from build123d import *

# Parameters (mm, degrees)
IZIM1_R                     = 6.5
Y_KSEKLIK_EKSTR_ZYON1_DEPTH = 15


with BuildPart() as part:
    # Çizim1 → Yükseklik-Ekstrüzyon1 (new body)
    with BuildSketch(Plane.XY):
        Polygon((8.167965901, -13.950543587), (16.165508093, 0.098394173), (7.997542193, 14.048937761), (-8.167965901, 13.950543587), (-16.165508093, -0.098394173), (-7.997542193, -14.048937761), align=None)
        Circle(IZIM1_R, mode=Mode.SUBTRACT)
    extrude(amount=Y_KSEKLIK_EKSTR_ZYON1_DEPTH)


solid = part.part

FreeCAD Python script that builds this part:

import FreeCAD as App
import Part
import Sketcher
Q = App.Units.Quantity


def add_polygon(sketch, points):
    """Adds a closed chain of lines whose ends are joined by coincident constraints."""
    first, n = sketch.GeometryCount, len(points)
    for a, b in zip(points, points[1:] + points[:1]):
        sketch.addGeometry(Part.LineSegment(App.Vector(*a, 0), App.Vector(*b, 0)), False)
    for i in range(n):
        sketch.addConstraint(Sketcher.Constraint("Coincident", first + i, 2, first + (i + 1) % n, 1))

doc = App.newDocument("Part")
params = doc.addObject("Spreadsheet::Sheet", "Params")
for row, (alias, value) in enumerate([
    ("sketch1_diameter", "13 mm"),
    ("pad1_length", "15 mm"),
], start=1):
    params.set(f"A{row}", alias)
    params.set(f"B{row}", "=" + value)
    params.setAlias(f"B{row}", alias)

body = doc.addObject("PartDesign::Body", "Body")

sketch1 = doc.addObject("Sketcher::SketchObject", "Sketch")
body.addObject(sketch1)
sketch1.AttachmentSupport = (doc.XY_Plane, [""])
sketch1.MapMode = "FlatFace"
add_polygon(sketch1, [(8.167966, -13.950544), (16.165508, 0.098394), (7.997542, 14.048938), (-8.167966, 13.950544), (-16.165508, -0.098394), (-7.997542, -14.048938)])
sketch1.addGeometry(Part.Circle(App.Vector(0, 0, 0), App.Vector(0, 0, 1), 6.5), False)
sketch1.addConstraint([
    Sketcher.Constraint("Coincident", 6, 3, -1, 1),
    Sketcher.Constraint("Symmetric", 0, 2, 3, 2, -1, 1),
    Sketcher.Constraint("Symmetric", 1, 2, 4, 2, -1, 1),
    Sketcher.Constraint("Symmetric", 2, 2, 5, 2, -1, 1),
    Sketcher.Constraint("Equal", 0, 1),
    Sketcher.Constraint("Equal", 1, 2),
    Sketcher.Constraint("Diameter", 6, Q("13 mm")),
    Sketcher.Constraint("DistanceX", -1, 1, 0, 2, Q("16.165508 mm")),
    Sketcher.Constraint("DistanceX", 2, 2, 1, 2, Q("16.165508 mm")),
    Sketcher.Constraint("DistanceY", 0, 2, 2, 2, Q("13.852149 mm")),
    Sketcher.Constraint("DistanceX", 3, 2, 1, 2, Q("24.16305 mm")),
])
sketch1.setExpression("Constraints[12]", "Params.sketch1_diameter")
pad1 = doc.addObject("PartDesign::Pad", "Pad")
body.addObject(pad1)
pad1.Profile = sketch1
pad1.setExpression("Length", "Params.pad1_length")

doc.recompute()
